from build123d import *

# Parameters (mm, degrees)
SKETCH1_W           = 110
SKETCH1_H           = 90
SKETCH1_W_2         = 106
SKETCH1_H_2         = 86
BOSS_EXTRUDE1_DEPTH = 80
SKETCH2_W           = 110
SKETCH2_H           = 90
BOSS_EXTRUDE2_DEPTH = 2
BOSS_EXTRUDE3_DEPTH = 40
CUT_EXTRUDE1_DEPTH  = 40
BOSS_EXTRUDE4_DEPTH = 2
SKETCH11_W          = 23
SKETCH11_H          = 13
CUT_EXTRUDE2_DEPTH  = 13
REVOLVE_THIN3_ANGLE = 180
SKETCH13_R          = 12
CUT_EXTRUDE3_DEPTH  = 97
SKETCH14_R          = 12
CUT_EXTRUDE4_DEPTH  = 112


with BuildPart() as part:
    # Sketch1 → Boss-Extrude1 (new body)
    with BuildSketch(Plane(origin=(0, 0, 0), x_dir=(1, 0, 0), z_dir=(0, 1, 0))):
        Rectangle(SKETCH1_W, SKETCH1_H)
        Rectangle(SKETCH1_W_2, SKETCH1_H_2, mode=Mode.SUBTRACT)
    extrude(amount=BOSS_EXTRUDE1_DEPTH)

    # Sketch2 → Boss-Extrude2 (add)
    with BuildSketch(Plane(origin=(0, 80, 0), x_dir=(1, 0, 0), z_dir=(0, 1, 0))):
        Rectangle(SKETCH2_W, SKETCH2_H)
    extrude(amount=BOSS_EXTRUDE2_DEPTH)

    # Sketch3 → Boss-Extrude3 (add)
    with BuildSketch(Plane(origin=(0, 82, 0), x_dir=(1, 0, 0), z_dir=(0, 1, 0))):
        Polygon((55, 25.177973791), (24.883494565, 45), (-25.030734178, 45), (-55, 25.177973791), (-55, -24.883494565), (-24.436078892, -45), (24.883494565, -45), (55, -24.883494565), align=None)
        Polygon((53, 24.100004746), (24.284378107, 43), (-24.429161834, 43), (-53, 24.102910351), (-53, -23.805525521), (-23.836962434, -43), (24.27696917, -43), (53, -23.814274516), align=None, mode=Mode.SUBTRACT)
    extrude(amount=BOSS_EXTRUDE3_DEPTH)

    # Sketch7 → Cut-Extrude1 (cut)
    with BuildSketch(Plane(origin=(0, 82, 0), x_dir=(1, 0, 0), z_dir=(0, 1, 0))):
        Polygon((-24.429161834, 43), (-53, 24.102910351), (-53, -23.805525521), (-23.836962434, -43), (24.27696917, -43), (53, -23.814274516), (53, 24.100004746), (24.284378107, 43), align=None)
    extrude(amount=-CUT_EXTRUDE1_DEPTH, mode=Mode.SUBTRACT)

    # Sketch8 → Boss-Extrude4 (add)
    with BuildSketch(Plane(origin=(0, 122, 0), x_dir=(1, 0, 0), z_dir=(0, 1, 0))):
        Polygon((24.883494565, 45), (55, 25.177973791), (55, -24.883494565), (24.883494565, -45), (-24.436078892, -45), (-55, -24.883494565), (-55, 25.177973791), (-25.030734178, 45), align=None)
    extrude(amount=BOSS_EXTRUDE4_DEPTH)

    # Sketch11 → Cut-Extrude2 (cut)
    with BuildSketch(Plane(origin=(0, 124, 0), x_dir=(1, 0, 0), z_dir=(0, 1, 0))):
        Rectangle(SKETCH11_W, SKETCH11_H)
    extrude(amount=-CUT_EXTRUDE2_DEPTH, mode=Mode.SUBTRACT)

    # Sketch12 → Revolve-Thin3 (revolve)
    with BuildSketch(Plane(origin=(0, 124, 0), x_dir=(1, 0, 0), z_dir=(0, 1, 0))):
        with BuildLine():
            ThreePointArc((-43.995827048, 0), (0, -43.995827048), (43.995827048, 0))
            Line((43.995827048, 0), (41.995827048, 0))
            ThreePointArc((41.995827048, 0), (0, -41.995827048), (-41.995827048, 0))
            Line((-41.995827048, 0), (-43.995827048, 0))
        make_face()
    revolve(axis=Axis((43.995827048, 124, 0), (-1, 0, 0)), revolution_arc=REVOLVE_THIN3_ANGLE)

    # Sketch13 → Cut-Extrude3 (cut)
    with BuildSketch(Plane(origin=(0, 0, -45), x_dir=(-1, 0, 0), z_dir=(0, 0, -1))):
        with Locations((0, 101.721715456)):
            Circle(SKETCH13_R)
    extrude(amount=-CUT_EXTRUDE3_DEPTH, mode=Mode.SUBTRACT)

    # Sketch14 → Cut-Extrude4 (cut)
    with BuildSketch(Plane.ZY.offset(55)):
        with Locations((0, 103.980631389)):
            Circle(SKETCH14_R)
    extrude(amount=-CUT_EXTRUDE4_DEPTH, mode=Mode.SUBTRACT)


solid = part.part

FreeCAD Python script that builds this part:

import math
import FreeCAD as App
import Part
import Sketcher


def add_polygon(sketch, points):
    """Adds a closed chain of lines whose ends are joined by coincident constraints."""
    first, n = sketch.GeometryCount, len(points)
    for a, b in zip(points, points[1:] + points[:1]):
        sketch.addGeometry(Part.LineSegment(App.Vector(*a, 0), App.Vector(*b, 0)), False)
    for i in range(n):
        sketch.addConstraint(Sketcher.Constraint("Coincident", first + i, 2, first + (i + 1) % n, 1))

doc = App.newDocument("Part")
body = doc.addObject("PartDesign::Body", "Body")

# Sketch on XZ plane
sketch1 = body.newObject("Sketcher::SketchObject", "Sketch")
sketch1.AttachmentSupport = (doc.getObject("XZ_Plane"), [""])
sketch1.MapMode = "FlatFace"
add_polygon(sketch1, [(-55, -45), (-55, 45), (55, 45), (55, -45)])  # lines 0-3
add_polygon(sketch1, [(53, 43), (-53, 43), (-53, -43), (53, -43)])  # lines 4-7
sketch1.addConstraint([
    Sketcher.Constraint("Vertical", 0),
    Sketcher.Constraint("Horizontal", 1),
    Sketcher.Constraint("Vertical", 2),
    Sketcher.Constraint("Horizontal", 3),
    Sketcher.Constraint("Horizontal", 4),
    Sketcher.Constraint("Vertical", 5),
    Sketcher.Constraint("Horizontal", 6),
    Sketcher.Constraint("Vertical", 7),
    Sketcher.Constraint("Symmetric", 0, 2, 2, 2, -1, 1),
    Sketcher.Constraint("Symmetric", 4, 2, 6, 2, -1, 1),
    Sketcher.Constraint("DistanceX", 1, 1, 1, 2, 110.0),
    Sketcher.Constraint("DistanceX", 4, 2, 4, 1, 106.0),
    Sketcher.Constraint("DistanceY", 0, 1, 0, 2, 90.0),
    Sketcher.Constraint("DistanceY", 5, 2, 5, 1, 86.0),
])
pad1 = body.newObject("PartDesign::Pad", "Pad")
pad1.Profile = sketch1
pad1.Length = 80
pad1.Reversed = True

# Sketch on XZ plane
sketch2 = body.newObject("Sketcher::SketchObject", "Sketch001")
sketch2.AttachmentSupport = (doc.getObject("XZ_Plane"), [""])
sketch2.MapMode = "FlatFace"
sketch2.AttachmentOffset = App.Placement(App.Vector(0, 0, -80), App.Rotation())
add_polygon(sketch2, [(-55, -45), (-55, 45), (55, 45), (55, -45)])  # lines 0-3
sketch2.addConstraint([
    Sketcher.Constraint("Vertical", 0),
    Sketcher.Constraint("Horizontal", 1),
    Sketcher.Constraint("Vertical", 2),
    Sketcher.Constraint("Horizontal", 3),
    Sketcher.Constraint("Symmetric", 0, 2, 2, 2, -1, 1),
    Sketcher.Constraint("DistanceX", 1, 1, 1, 2, 110.0),
    Sketcher.Constraint("DistanceY", 0, 1, 0, 2, 90.0),
])
pad2 = body.newObject("PartDesign::Pad", "Pad001")
pad2.Profile = sketch2
pad2.Length = 2
pad2.Reversed = True

# Sketch on XZ plane
sketch3 = body.newObject("Sketcher::SketchObject", "Sketch002")
sketch3.AttachmentSupport = (doc.getObject("XZ_Plane"), [""])
sketch3.MapMode = "FlatFace"
sketch3.AttachmentOffset = App.Placement(App.Vector(0, 0, -82), App.Rotation())
add_polygon(sketch3, [(55, -25), (25, -45), (-25, -45), (-55, -25), (-55, 25), (-24, 45), (25, 45), (55, 25)])  # lines 0-7
add_polygon(sketch3, [(24, -43), (53, -24), (53, 24), (24, 43), (-24, 43), (-53, 24), (-53, -24), (-24, -43)])  # lines 8-15
sketch3.addConstraint([
    Sketcher.Constraint("Horizontal", 1),
    Sketcher.Constraint("Vertical", 3),
    Sketcher.Constraint("Horizontal", 5),
    Sketcher.Constraint("Vertical", 7),
    Sketcher.Constraint("Vertical", 9),
    Sketcher.Constraint("Horizontal", 11),
    Sketcher.Constraint("Vertical", 13),
    Sketcher.Constraint("Horizontal", 15),
    Sketcher.Constraint("Symmetric", 3, 2, 6, 2, -2),
    Sketcher.Constraint("Symmetric", 0, 2, 5, 2, -1),
    Sketcher.Constraint("Parallel", 0, 4),
    Sketcher.Constraint("Parallel", 4, 8),
    Sketcher.Constraint("Parallel", 6, 10),
    Sketcher.Constraint("Parallel", 8, 12),
    Sketcher.Constraint("Parallel", 2, 14),
    Sketcher.Constraint("Horizontal", 2, 2, 7, 2),
    Sketcher.Constraint("DistanceY", 0, 2, -1, 1, 45.0),
    Sketcher.Constraint("DistanceX", 2, 2, -1, 1, 55.0),
    Sketcher.Constraint("DistanceX", -1, 1, 8, 2, 53.0),
    Sketcher.Constraint("DistanceY", -1, 1, 10, 2, 43.0),
    Sketcher.Constraint("DistanceX", 12, 2, -1, 1, 53.0),
    Sketcher.Constraint("DistanceY", 14, 2, -1, 1, 43.0),
    Sketcher.Constraint("Distance", 12, 34.9129),
    Sketcher.Constraint("DistanceX", 1, 2, 1, 1, 49.914229),
    Sketcher.Constraint("DistanceX", 11, 2, 11, 1, 48.113932),
    Sketcher.Constraint("DistanceX", 15, 1, 15, 2, 48.71354),
    Sketcher.Constraint("DistanceY", 3, 1, 3, 2, 50.061468),
    Sketcher.Constraint("DistanceY", 9, 1, 9, 2, 47.914279),
    Sketcher.Constraint("DistanceY", 8, 2, 6, 2, 48.983499),
    Sketcher.Constraint("DistanceY", 2, 2, 12, 2, 48.983499),
])
pad3 = body.newObject("PartDesign::Pad", "Pad002")
pad3.Profile = sketch3
pad3.Length = 40
pad3.Reversed = True

# Sketch on XZ plane
sketch4 = body.newObject("Sketcher::SketchObject", "Sketch003")
sketch4.AttachmentSupport = (doc.getObject("XZ_Plane"), [""])
sketch4.MapMode = "FlatFace"
sketch4.AttachmentOffset = App.Placement(App.Vector(0, 0, -82), App.Rotation())
add_polygon(sketch4, [(-24, -43), (-53, -24), (-53, 24), (-24, 43), (24, 43), (53, 24), (53, -24), (24, -43)])  # lines 0-7
sketch4.addConstraint([
    Sketcher.Constraint("Vertical", 1),
    Sketcher.Constraint("Horizontal", 3),
    Sketcher.Constraint("Vertical", 5),
    Sketcher.Constraint("Horizontal", 7),
    Sketcher.Constraint("Parallel", 2, 6),
    Sketcher.Constraint("DistanceX", 0, 2, -1, 1, 53.0),
    Sketcher.Constraint("DistanceY", -1, 1, 2, 2, 43.0),
    Sketcher.Constraint("DistanceX", -1, 1, 4, 2, 53.0),
    Sketcher.Constraint("DistanceY", 6, 2, -1, 1, 43.0),
    Sketcher.Constraint("Distance", 2, 34.9129),
    Sketcher.Constraint("DistanceX", 3, 1, 3, 2, 48.113932),
    Sketcher.Constraint("DistanceX", 7, 2, 7, 1, 48.71354),
    Sketcher.Constraint("DistanceY", 5, 2, 5, 1, 47.914279),
    Sketcher.Constraint("DistanceX", 7, 2, 2, 2, 0.592199),
    Sketcher.Constraint("Distance", 0, 34.254821),
    Sketcher.Constraint("Distance", 6, 34.377271),
])
pocket1 = body.newObject("PartDesign::Pocket", "Pocket")
pocket1.Profile = sketch4
pocket1.Length = 40
pocket1.Reversed = True

# Sketch on XZ plane
sketch5 = body.newObject("Sketcher::SketchObject", "Sketch004")
sketch5.AttachmentSupport = (doc.getObject("XZ_Plane"), [""])
sketch5.MapMode = "FlatFace"
sketch5.AttachmentOffset = App.Placement(App.Vector(0, 0, -122), App.Rotation())
add_polygon(sketch5, [(55, -25), (25, -45), (-25, -45), (-55, -25), (-55, 25), (-24, 45), (25, 45), (55, 25)])  # lines 0-7
sketch5.addConstraint([
    Sketcher.Constraint("Horizontal", 1),
    Sketcher.Constraint("Vertical", 3),
    Sketcher.Constraint("Horizontal", 5),
    Sketcher.Constraint("Vertical", 7),
    Sketcher.Constraint("Symmetric", 3, 2, 6, 2, -2),
    Sketcher.Constraint("Symmetric", 0, 2, 5, 2, -1),
    Sketcher.Constraint("Parallel", 0, 4),
    Sketcher.Constraint("Horizontal", 2, 2, 7, 2),
    Sketcher.Constraint("DistanceY", 0, 2, -1, 1, 45.0),
    Sketcher.Constraint("DistanceX", 2, 2, -1, 1, 55.0),
    Sketcher.Constraint("DistanceX", 1, 2, 1, 1, 49.914229),
    Sketcher.Constraint("DistanceY", 3, 1, 3, 2, 50.061468),
    Sketcher.Constraint("Distance", 6, 36.217091),
    Sketcher.Constraint("DistanceX", 5, 1, 5, 2, 49.319573),
])
pad4 = body.newObject("PartDesign::Pad", "Pad003")
pad4.Profile = sketch5
pad4.Length = 2
pad4.Reversed = True

# Sketch on XZ plane
sketch6 = body.newObject("Sketcher::SketchObject", "Sketch005")
sketch6.AttachmentSupport = (doc.getObject("XZ_Plane"), [""])
sketch6.MapMode = "FlatFace"
sketch6.AttachmentOffset = App.Placement(App.Vector(0, 0, -124), App.Rotation())
add_polygon(sketch6, [(-12, -6), (-12, 6), (12, 6), (12, -6)])  # lines 0-3
sketch6.addConstraint([
    Sketcher.Constraint("Vertical", 0),
    Sketcher.Constraint("Horizontal", 1),
    Sketcher.Constraint("Vertical", 2),
    Sketcher.Constraint("Horizontal", 3),
    Sketcher.Constraint("Symmetric", 0, 2, 2, 2, -1, 1),
    Sketcher.Constraint("DistanceX", 1, 1, 1, 2, 23.0),
    Sketcher.Constraint("DistanceY", 0, 1, 0, 2, 13.0),
])
pocket2 = body.newObject("PartDesign::Pocket", "Pocket001")
pocket2.Profile = sketch6
pocket2.Length = 13
pocket2.Reversed = True

# Sketch on XZ plane
sketch7 = body.newObject("Sketcher::SketchObject", "Sketch006")
sketch7.AttachmentSupport = (doc.getObject("XZ_Plane"), [""])
sketch7.MapMode = "FlatFace"
sketch7.AttachmentOffset = App.Placement(App.Vector(0, 0, -124), App.Rotation())
sketch7.addGeometry([
    Part.ArcOfCircle(Part.Circle(App.Vector(0, 0, 0), App.Vector(0, 0, 1), 44), math.radians(0), math.radians(180)),
    Part.LineSegment(App.Vector(44, 0, 0), App.Vector(42, 0, 0)),
    Part.ArcOfCircle(Part.Circle(App.Vector(0, 0, 0), App.Vector(0, 0, 1), 42), math.radians(0), math.radians(180)),
    Part.LineSegment(App.Vector(-42, 0, 0), App.Vector(-44, 0, 0)),
], False)
sketch7.addConstraint([
    Sketcher.Constraint("Coincident", 0, 1, 1, 1),
    Sketcher.Constraint("Coincident", 1, 2, 2, 1),
    Sketcher.Constraint("Coincident", 2, 2, 3, 1),
    Sketcher.Constraint("Coincident", 3, 2, 0, 2),
    Sketcher.Constraint("Horizontal", 1),
    Sketcher.Constraint("Horizontal", 3),
    Sketcher.Constraint("Coincident", 0, 3, -1, 1),
    Sketcher.Constraint("Coincident", 2, 3, -1, 1),
    Sketcher.Constraint("PointOnObject", 0, 1, -1),
    Sketcher.Constraint("PointOnObject", 2, 2, -1),
    Sketcher.Constraint("DistanceX", 1, 2, 1, 1, 2.0),
    Sketcher.Constraint("Radius", 0, 43.995827),
])
revolution = body.newObject("PartDesign::Revolution", "Revolution")
revolution.Profile = sketch7
revolution.ReferenceAxis = (sketch7, ["H_Axis"])
revolution.Angle = 180
revolution.Reversed = True

# Sketch on XY plane
sketch8 = body.newObject("Sketcher::SketchObject", "Sketch007")
sketch8.AttachmentSupport = (doc.getObject("XY_Plane"), [""])
sketch8.MapMode = "FlatFace"
sketch8.AttachmentOffset = App.Placement(App.Vector(0, 0, -45), App.Rotation())
sketch8.addGeometry(Part.Circle(App.Vector(0, 102, 0), App.Vector(0, 0, 1), 12), False)
sketch8.addConstraint([
    Sketcher.Constraint("PointOnObject", 0, 3, -2),
    Sketcher.Constraint("Diameter", 0, 24.0),
    Sketcher.Constraint("DistanceY", -1, 1, 0, 3, 101.721715),
])
pocket3 = body.newObject("PartDesign::Pocket", "Pocket002")
pocket3.Profile = sketch8
pocket3.Length = 97
pocket3.Reversed = True

# Sketch on YZ plane
sketch9 = body.newObject("Sketcher::SketchObject", "Sketch008")
sketch9.AttachmentSupport = (doc.getObject("YZ_Plane"), [""])
sketch9.MapMode = "FlatFace"
sketch9.AttachmentOffset = App.Placement(App.Vector(0, 0, -55), App.Rotation())
sketch9.addGeometry(Part.Circle(App.Vector(104, 0, 0), App.Vector(0, 0, 1), 12), False)
sketch9.addConstraint([
    Sketcher.Constraint("PointOnObject", 0, 3, -1),
    Sketcher.Constraint("Diameter", 0, 24.0),
    Sketcher.Constraint("DistanceX", -1, 1, 0, 3, 103.980631),
])
pocket4 = body.newObject("PartDesign::Pocket", "Pocket003")
pocket4.Profile = sketch9
pocket4.Length = 112
pocket4.Reversed = True

doc.recompute()
